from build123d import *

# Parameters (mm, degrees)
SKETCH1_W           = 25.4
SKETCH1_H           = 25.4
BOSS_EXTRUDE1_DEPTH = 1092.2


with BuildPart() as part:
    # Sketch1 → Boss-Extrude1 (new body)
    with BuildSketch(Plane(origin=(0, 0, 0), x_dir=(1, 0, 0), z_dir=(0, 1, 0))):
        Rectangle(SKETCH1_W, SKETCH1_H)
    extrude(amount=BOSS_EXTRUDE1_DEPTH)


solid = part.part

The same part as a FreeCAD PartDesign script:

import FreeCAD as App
import Part
import Sketcher
Q = App.Units.Quantity

doc = App.newDocument("Part")
body = doc.addObject("PartDesign::Body", "Body")

# Sketch on XZ plane
sketch1 = body.newObject("Sketcher::SketchObject", "Sketch")
sketch1.AttachmentSupport = (doc.getObject("XZ_Plane"), [""])
sketch1.MapMode = "FlatFace"
sketch1.addGeometry(Part.LineSegment(App.Vector(-12.7, -12.7, 0), App.Vector(-12.7, 12.7, 0)), False)
sketch1.addGeometry(Part.LineSegment(App.Vector(-12.7, 12.7, 0), App.Vector(12.7, 12.7, 0)), False)
sketch1.addGeometry(Part.LineSegment(App.Vector(12.7, 12.7, 0), App.Vector(12.7, -12.7, 0)), False)
sketch1.addGeometry(Part.LineSegment(App.Vector(12.7, -12.7, 0), App.Vector(-12.7, -12.7, 0)), False)
sketch1.addConstraint(Sketcher.Constraint("Coincident", 0, 2, 1, 1))
sketch1.addConstraint(Sketcher.Constraint("Coincident", 1, 2, 2, 1))
sketch1.addConstraint(Sketcher.Constraint("Coincident", 2, 2, 3, 1))
sketch1.addConstraint(Sketcher.Constraint("Coincident", 3, 2, 0, 1))
sketch1.addConstraint(Sketcher.Constraint("Vertical", 0))
sketch1.addConstraint(Sketcher.Constraint("Horizontal", 1))
sketch1.addConstraint(Sketcher.Constraint("Vertical", 2))
sketch1.addConstraint(Sketcher.Constraint("Horizontal", 3))
sketch1.addConstraint(Sketcher.Constraint("Symmetric", 0, 2, 2, 2, -1, 1))
sketch1.addConstraint(Sketcher.Constraint("Equal", 3, 0))
sketch1.addConstraint(Sketcher.Constraint("DistanceX", 1, 1, 1, 2, Q("1 in")))
pad1 = body.newObject("PartDesign::Pad", "Pad")
pad1.Profile = sketch1
pad1.Length = Q("43 in")
pad1.Reversed = True

doc.recompute()
